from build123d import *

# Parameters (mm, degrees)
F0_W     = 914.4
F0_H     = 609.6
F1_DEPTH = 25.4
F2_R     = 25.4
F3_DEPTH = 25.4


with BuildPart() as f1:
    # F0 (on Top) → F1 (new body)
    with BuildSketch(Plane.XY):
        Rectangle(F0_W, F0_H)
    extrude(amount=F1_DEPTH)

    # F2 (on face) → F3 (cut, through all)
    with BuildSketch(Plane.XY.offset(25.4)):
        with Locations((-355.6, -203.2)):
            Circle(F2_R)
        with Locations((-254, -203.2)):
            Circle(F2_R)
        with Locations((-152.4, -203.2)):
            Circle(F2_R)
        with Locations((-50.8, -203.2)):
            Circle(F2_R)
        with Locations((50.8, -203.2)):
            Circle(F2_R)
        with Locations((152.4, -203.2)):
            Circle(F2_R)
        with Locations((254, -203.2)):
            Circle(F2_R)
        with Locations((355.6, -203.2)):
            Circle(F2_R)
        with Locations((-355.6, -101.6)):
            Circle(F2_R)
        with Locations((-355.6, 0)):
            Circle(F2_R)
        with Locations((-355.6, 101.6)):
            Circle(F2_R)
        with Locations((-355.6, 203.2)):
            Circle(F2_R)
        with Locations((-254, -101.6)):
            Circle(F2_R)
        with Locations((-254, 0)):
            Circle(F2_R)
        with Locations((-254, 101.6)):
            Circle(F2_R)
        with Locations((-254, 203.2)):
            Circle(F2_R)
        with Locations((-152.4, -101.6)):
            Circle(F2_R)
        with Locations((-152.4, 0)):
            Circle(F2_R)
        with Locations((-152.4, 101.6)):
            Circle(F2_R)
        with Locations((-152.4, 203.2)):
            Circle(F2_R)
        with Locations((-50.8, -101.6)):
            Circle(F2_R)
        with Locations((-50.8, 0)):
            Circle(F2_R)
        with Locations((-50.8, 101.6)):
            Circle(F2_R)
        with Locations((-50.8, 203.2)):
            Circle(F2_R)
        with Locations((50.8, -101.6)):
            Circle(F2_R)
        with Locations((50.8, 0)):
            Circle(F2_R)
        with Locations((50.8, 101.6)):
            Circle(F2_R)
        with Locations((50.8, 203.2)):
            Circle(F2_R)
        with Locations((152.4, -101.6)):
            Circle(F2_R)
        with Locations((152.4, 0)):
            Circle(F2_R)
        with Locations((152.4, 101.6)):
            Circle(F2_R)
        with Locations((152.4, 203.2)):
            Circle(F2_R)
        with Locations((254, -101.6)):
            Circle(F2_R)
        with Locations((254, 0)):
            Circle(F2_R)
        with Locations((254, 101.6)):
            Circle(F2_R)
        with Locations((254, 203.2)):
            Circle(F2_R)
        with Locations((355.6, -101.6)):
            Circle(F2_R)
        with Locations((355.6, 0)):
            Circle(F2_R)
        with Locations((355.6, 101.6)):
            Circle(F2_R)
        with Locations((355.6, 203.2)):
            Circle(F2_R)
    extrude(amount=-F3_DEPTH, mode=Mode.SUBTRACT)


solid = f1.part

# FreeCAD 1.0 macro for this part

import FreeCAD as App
import Part
import Sketcher
Q = App.Units.Quantity


def add_polygon(sketch, points):
    """Adds a closed chain of lines whose ends are joined by coincident constraints."""
    first, n = sketch.GeometryCount, len(points)
    for a, b in zip(points, points[1:] + points[:1]):
        sketch.addGeometry(Part.LineSegment(App.Vector(*a, 0), App.Vector(*b, 0)), False)
    for i in range(n):
        sketch.addConstraint(Sketcher.Constraint("Coincident", first + i, 2, first + (i + 1) % n, 1))

doc = App.newDocument("Part")
params = doc.addObject("Spreadsheet::Sheet", "Params")
for row, (alias, value) in enumerate([
    ("sketch1_width", "36 in"),
    ("sketch1_height", "24 in"),
    ("pad1_length", "1 in"),
    ("sketch2_diameter", "2 in"),
], start=1):
    params.set(f"A{row}", alias)
    params.set(f"B{row}", "=" + value)
    params.setAlias(f"B{row}", alias)

body = doc.addObject("PartDesign::Body", "Body")

sketch1 = body.newObject("Sketcher::SketchObject", "Sketch")
sketch1.AttachmentSupport = (doc.getObject("XY_Plane"), [""])
sketch1.MapMode = "FlatFace"
add_polygon(sketch1, [(-457.2, 304.8), (-457.2, -304.8), (457.2, -304.8), (457.2, 304.8)])
sketch1.addConstraint([
    Sketcher.Constraint("Vertical", 0),
    Sketcher.Constraint("Horizontal", 1),
    Sketcher.Constraint("Vertical", 2),
    Sketcher.Constraint("Horizontal", 3),
    Sketcher.Constraint("Symmetric", 0, 2, 2, 2, -1, 1),
    Sketcher.Constraint("DistanceX", 1, 1, 1, 2, Q("36 in")),
    Sketcher.Constraint("DistanceY", 0, 2, 0, 1, Q("24 in")),
])
sketch1.setExpression("Constraints[9]", "Params.sketch1_width")
sketch1.setExpression("Constraints[10]", "Params.sketch1_height")
pad1 = body.newObject("PartDesign::Pad", "Pad")
pad1.Profile = sketch1
pad1.setExpression("Length", "Params.pad1_length")

sketch2 = body.newObject("Sketcher::SketchObject", "Sketch001")
sketch2.AttachmentSupport = (doc.getObject("XY_Plane"), [""])
sketch2.MapMode = "FlatFace"
sketch2.AttachmentOffset = App.Placement(App.Vector(0, 0, 1 * 25.4), App.Rotation())
sketch2.addGeometry([
    Part.Circle(App.Vector(-355.6, -203.2, 0), App.Vector(0, 0, 1), 25.4),
    Part.Circle(App.Vector(-254, -203.2, 0), App.Vector(0, 0, 1), 25.4),
    Part.Circle(App.Vector(-152.4, -203.2, 0), App.Vector(0, 0, 1), 25.4),
    Part.Circle(App.Vector(-50.8, -203.2, 0), App.Vector(0, 0, 1), 25.4),
    Part.Circle(App.Vector(50.8, -203.2, 0), App.Vector(0, 0, 1), 25.4),
    Part.Circle(App.Vector(152.4, -203.2, 0), App.Vector(0, 0, 1), 25.4),
    Part.Circle(App.Vector(254, -203.2, 0), App.Vector(0, 0, 1), 25.4),
    Part.Circle(App.Vector(355.6, -203.2, 0), App.Vector(0, 0, 1), 25.4),
    Part.Circle(App.Vector(-355.6, -101.6, 0), App.Vector(0, 0, 1), 25.4),
    Part.Circle(App.Vector(-355.6, 0, 0), App.Vector(0, 0, 1), 25.4),
    Part.Circle(App.Vector(-355.6, 101.6, 0), App.Vector(0, 0, 1), 25.4),
    Part.Circle(App.Vector(-355.6, 203.2, 0), App.Vector(0, 0, 1), 25.4),
    Part.Circle(App.Vector(-254, -101.6, 0), App.Vector(0, 0, 1), 25.4),
    Part.Circle(App.Vector(-254, 0, 0), App.Vector(0, 0, 1), 25.4),
    Part.Circle(App.Vector(-254, 101.6, 0), App.Vector(0, 0, 1), 25.4),
    Part.Circle(App.Vector(-254, 203.2, 0), App.Vector(0, 0, 1), 25.4),
    Part.Circle(App.Vector(-152.4, -101.6, 0), App.Vector(0, 0, 1), 25.4),
    Part.Circle(App.Vector(-152.4, 0, 0), App.Vector(0, 0, 1), 25.4),
    Part.Circle(App.Vector(-152.4, 101.6, 0), App.Vector(0, 0, 1), 25.4),
    Part.Circle(App.Vector(-152.4, 203.2, 0), App.Vector(0, 0, 1), 25.4),
    Part.Circle(App.Vector(-50.8, -101.6, 0), App.Vector(0, 0, 1), 25.4),
    Part.Circle(App.Vector(-50.8, 0, 0), App.Vector(0, 0, 1), 25.4),
    Part.Circle(App.Vector(-50.8, 101.6, 0), App.Vector(0, 0, 1), 25.4),
    Part.Circle(App.Vector(-50.8, 203.2, 0), App.Vector(0, 0, 1), 25.4),
    Part.Circle(App.Vector(50.8, -101.6, 0), App.Vector(0, 0, 1), 25.4),
    Part.Circle(App.Vector(50.8, 0, 0), App.Vector(0, 0, 1), 25.4),
    Part.Circle(App.Vector(50.8, 101.6, 0), App.Vector(0, 0, 1), 25.4),
    Part.Circle(App.Vector(50.8, 203.2, 0), App.Vector(0, 0, 1), 25.4),
    Part.Circle(App.Vector(152.4, -101.6, 0), App.Vector(0, 0, 1), 25.4),
    Part.Circle(App.Vector(152.4, 0, 0), App.Vector(0, 0, 1), 25.4),
    Part.Circle(App.Vector(152.4, 101.6, 0), App.Vector(0, 0, 1), 25.4),
    Part.Circle(App.Vector(152.4, 203.2, 0), App.Vector(0, 0, 1), 25.4),
    Part.Circle(App.Vector(254, -101.6, 0), App.Vector(0, 0, 1), 25.4),
    Part.Circle(App.Vector(254, 0, 0), App.Vector(0, 0, 1), 25.4),
    Part.Circle(App.Vector(254, 101.6, 0), App.Vector(0, 0, 1), 25.4),
    Part.Circle(App.Vector(254, 203.2, 0), App.Vector(0, 0, 1), 25.4),
    Part.Circle(App.Vector(355.6, -101.6, 0), App.Vector(0, 0, 1), 25.4),
    Part.Circle(App.Vector(355.6, 0, 0), App.Vector(0, 0, 1), 25.4),
    Part.Circle(App.Vector(355.6, 101.6, 0), App.Vector(0, 0, 1), 25.4),
    Part.Circle(App.Vector(355.6, 203.2, 0), App.Vector(0, 0, 1), 25.4),
], False)
sketch2.addConstraint([
    Sketcher.Constraint("Equal", 0, 1),
    Sketcher.Constraint("Equal", 1, 2),
    Sketcher.Constraint("Equal", 2, 3),
    Sketcher.Constraint("Equal", 3, 4),
    Sketcher.Constraint("Equal", 4, 5),
    Sketcher.Constraint("Equal", 5, 6),
    Sketcher.Constraint("Equal", 6, 7),
    Sketcher.Constraint("Equal", 7, 8),
    Sketcher.Constraint("Equal", 8, 9),
    Sketcher.Constraint("Equal", 9, 10),
    Sketcher.Constraint("Equal", 10, 11),
    Sketcher.Constraint("Equal", 11, 12),
    Sketcher.Constraint("Equal", 12, 13),
    Sketcher.Constraint("Equal", 13, 14),
    Sketcher.Constraint("Equal", 14, 15),
    Sketcher.Constraint("Equal", 15, 16),
    Sketcher.Constraint("Equal", 16, 17),
    Sketcher.Constraint("Equal", 17, 18),
    Sketcher.Constraint("Equal", 18, 19),
    Sketcher.Constraint("Equal", 19, 20),
    Sketcher.Constraint("Equal", 20, 21),
    Sketcher.Constraint("Equal", 21, 22),
    Sketcher.Constraint("Equal", 22, 23),
    Sketcher.Constraint("Equal", 23, 24),
    Sketcher.Constraint("Equal", 24, 25),
    Sketcher.Constraint("Equal", 25, 26),
    Sketcher.Constraint("Equal", 26, 27),
    Sketcher.Constraint("Equal", 27, 28),
    Sketcher.Constraint("Equal", 28, 29),
    Sketcher.Constraint("Equal", 29, 30),
    Sketcher.Constraint("Equal", 30, 31),
    Sketcher.Constraint("Equal", 31, 32),
    Sketcher.Constraint("Equal", 32, 33),
    Sketcher.Constraint("Equal", 33, 34),
    Sketcher.Constraint("Equal", 34, 35),
    Sketcher.Constraint("Equal", 35, 36),
    Sketcher.Constraint("Equal", 36, 37),
    Sketcher.Constraint("Equal", 37, 38),
    Sketcher.Constraint("Equal", 38, 39),
    Sketcher.Constraint("Symmetric", 7, 3, 11, 3, -1, 1),
    Sketcher.Constraint("Symmetric", 6, 3, 15, 3, -1, 1),
    Sketcher.Constraint("Symmetric", 5, 3, 19, 3, -1, 1),
    Sketcher.Constraint("Symmetric", 4, 3, 23, 3, -1, 1),
    Sketcher.Constraint("Symmetric", 22, 3, 24, 3, -1, 1),
    Sketcher.Constraint("Symmetric", 21, 3, 25, 3, -1, 1),
    Sketcher.Constraint("Symmetric", 20, 3, 26, 3, -1, 1),
    Sketcher.Constraint("Symmetric", 3, 3, 27, 3, -1, 1),
    Sketcher.Constraint("Symmetric", 18, 3, 28, 3, -1, 1),
    Sketcher.Constraint("Symmetric", 17, 3, 29, 3, -1, 1),
    Sketcher.Constraint("Symmetric", 16, 3, 30, 3, -1, 1),
    Sketcher.Constraint("Symmetric", 2, 3, 31, 3, -1, 1),
    Sketcher.Constraint("Symmetric", 14, 3, 32, 3, -1, 1),
    Sketcher.Constraint("Symmetric", 13, 3, 33, 3, -1, 1),
    Sketcher.Constraint("Symmetric", 12, 3, 34, 3, -1, 1),
    Sketcher.Constraint("Symmetric", 1, 3, 35, 3, -1, 1),
    Sketcher.Constraint("Symmetric", 10, 3, 36, 3, -1, 1),
    Sketcher.Constraint("Symmetric", 9, 3, 37, 3, -1, 1),
    Sketcher.Constraint("Symmetric", 8, 3, 38, 3, -1, 1),
    Sketcher.Constraint("Symmetric", 0, 3, 39, 3, -1, 1),
    Sketcher.Constraint("Symmetric", 3, 3, 4, 3, -2),
    Sketcher.Constraint("Symmetric", 2, 3, 5, 3, -2),
    Sketcher.Constraint("Symmetric", 1, 3, 6, 3, -2),
    Sketcher.Constraint("Symmetric", 0, 3, 7, 3, -2),
    Sketcher.Constraint("Symmetric", 20, 3, 24, 3, -2),
    Sketcher.Constraint("Symmetric", 16, 3, 28, 3, -2),
    Sketcher.Constraint("Symmetric", 12, 3, 32, 3, -2),
    Sketcher.Constraint("Symmetric", 8, 3, 36, 3, -2),
    Sketcher.Constraint("PointOnObject", 9, 3, -1),
    Sketcher.Constraint("PointOnObject", 13, 3, -1),
    Sketcher.Constraint("PointOnObject", 17, 3, -1),
    Sketcher.Constraint("PointOnObject", 21, 3, -1),
    Sketcher.Constraint("Horizontal", 0, 3, 1, 3),
    Sketcher.Constraint("Horizontal", 1, 3, 2, 3),
    Sketcher.Constraint("Horizontal", 2, 3, 3, 3),
    Sketcher.Constraint("Horizontal", 8, 3, 12, 3),
    Sketcher.Constraint("Horizontal", 12, 3, 16, 3),
    Sketcher.Constraint("Horizontal", 16, 3, 20, 3),
    Sketcher.Constraint("Vertical", 0, 3, 8, 3),
    Sketcher.Constraint("Vertical", 8, 3, 9, 3),
    Sketcher.Constraint("Vertical", 1, 3, 12, 3),
    Sketcher.Constraint("Vertical", 12, 3, 13, 3),
    Sketcher.Constraint("Vertical", 2, 3, 16, 3),
    Sketcher.Constraint("Vertical", 16, 3, 17, 3),
    Sketcher.Constraint("Vertical", 3, 3, 20, 3),
    Sketcher.Constraint("Vertical", 20, 3, 21, 3),
    Sketcher.Constraint("Diameter", 0, Q("2 in")),
    Sketcher.Constraint("DistanceX", 0, 3, -1, 1, Q("14 in")),
    Sketcher.Constraint("DistanceY", 0, 3, -1, 1, Q("8 in")),
    Sketcher.Constraint("DistanceX", 1, 3, -1, 1, Q("10 in")),
    Sketcher.Constraint("DistanceX", 2, 3, -1, 1, Q("6 in")),
    Sketcher.Constraint("DistanceX", 3, 3, -1, 1, Q("2 in")),
    Sketcher.Constraint("DistanceY", 8, 3, -1, 1, Q("4 in")),
])
sketch2.setExpression("Constraints[85]", "Params.sketch2_diameter")
pocket1 = body.newObject("PartDesign::Pocket", "Pocket")
pocket1.Profile = sketch2
pocket1.Type = "ThroughAll"

doc.recompute()
